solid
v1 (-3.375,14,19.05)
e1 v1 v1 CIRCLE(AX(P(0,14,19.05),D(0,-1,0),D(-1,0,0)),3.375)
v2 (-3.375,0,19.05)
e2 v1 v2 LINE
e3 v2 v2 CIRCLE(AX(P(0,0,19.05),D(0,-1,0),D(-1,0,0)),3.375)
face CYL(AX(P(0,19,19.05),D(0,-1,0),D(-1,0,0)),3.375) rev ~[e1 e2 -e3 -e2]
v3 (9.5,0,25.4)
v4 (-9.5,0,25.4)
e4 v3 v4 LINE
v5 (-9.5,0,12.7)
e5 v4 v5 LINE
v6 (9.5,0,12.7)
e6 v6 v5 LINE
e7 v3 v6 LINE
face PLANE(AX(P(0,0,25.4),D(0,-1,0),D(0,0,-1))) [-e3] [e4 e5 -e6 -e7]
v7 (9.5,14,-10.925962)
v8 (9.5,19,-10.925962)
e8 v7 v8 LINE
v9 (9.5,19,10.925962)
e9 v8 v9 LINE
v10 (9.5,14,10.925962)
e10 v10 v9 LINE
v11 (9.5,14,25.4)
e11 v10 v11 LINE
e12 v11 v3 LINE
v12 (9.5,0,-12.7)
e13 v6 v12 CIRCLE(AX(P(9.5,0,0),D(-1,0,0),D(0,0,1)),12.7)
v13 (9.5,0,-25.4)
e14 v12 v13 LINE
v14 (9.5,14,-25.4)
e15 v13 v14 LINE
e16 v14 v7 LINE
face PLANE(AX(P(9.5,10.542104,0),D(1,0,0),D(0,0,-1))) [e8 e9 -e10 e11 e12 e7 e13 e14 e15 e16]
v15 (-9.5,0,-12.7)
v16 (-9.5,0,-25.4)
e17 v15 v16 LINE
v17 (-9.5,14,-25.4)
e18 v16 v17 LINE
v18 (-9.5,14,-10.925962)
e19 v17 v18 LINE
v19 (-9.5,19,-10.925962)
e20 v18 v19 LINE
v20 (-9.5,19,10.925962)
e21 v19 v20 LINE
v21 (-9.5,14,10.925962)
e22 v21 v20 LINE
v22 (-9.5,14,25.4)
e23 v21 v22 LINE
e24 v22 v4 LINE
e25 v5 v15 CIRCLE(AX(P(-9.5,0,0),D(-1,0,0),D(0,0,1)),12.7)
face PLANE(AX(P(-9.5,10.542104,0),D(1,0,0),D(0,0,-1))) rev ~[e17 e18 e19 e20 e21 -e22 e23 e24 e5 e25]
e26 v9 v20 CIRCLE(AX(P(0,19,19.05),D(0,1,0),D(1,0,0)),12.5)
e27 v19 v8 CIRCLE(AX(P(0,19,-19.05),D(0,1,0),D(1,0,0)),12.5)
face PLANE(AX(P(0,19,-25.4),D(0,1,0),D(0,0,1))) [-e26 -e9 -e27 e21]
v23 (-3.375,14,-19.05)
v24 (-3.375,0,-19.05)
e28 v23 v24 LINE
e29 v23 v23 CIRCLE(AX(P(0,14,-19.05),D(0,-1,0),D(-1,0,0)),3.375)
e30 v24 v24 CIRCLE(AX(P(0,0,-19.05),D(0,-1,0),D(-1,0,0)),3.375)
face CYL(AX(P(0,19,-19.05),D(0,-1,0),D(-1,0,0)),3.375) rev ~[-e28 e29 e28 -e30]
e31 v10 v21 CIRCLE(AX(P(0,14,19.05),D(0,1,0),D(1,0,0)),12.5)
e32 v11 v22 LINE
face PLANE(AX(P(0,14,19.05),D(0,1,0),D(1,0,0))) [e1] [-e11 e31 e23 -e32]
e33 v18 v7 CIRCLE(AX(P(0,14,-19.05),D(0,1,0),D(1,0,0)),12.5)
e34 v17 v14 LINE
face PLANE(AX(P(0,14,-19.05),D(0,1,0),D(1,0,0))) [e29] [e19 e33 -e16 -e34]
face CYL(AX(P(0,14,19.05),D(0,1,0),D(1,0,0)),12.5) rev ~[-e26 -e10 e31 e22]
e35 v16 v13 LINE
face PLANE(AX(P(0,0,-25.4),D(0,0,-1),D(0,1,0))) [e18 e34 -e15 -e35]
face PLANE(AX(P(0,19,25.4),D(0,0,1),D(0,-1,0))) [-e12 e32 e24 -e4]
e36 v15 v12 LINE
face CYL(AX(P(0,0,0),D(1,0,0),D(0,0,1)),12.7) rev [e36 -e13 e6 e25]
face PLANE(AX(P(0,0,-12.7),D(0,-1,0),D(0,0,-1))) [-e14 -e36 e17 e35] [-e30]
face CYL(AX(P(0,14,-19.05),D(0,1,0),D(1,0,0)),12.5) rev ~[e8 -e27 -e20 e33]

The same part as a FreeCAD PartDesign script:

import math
import FreeCAD as App
import Part
import Sketcher
Q = App.Units.Quantity

doc = App.newDocument("Part")
body = doc.addObject("PartDesign::Body", "Body")

# Sketch on YZ plane
sketch1 = body.newObject("Sketcher::SketchObject", "Sketch")
sketch1.AttachmentSupport = (doc.getObject("YZ_Plane"), [""])
sketch1.MapMode = "FlatFace"
sketch1.addGeometry(Part.ArcOfCircle(Part.Circle(App.Vector(0, 0, 0), App.Vector(0, 0, 1), 13), math.radians(-90), math.radians(90)), False)
sketch1.addGeometry(Part.LineSegment(App.Vector(0, -13, 0), App.Vector(0, -25, 0)), False)
sketch1.addGeometry(Part.LineSegment(App.Vector(0, -25, 0), App.Vector(19, -25, 0)), False)
sketch1.addGeometry(Part.LineSegment(App.Vector(19, -25, 0), App.Vector(19, 25, 0)), False)
sketch1.addGeometry(Part.LineSegment(App.Vector(19, 25, 0), App.Vector(0, 25, 0)), False)
sketch1.addGeometry(Part.LineSegment(App.Vector(0, 25, 0), App.Vector(0, 13, 0)), False)
sketch1.addConstraint(Sketcher.Constraint("Coincident", 0, 1, 1, 1))
sketch1.addConstraint(Sketcher.Constraint("Coincident", 1, 2, 2, 1))
sketch1.addConstraint(Sketcher.Constraint("Coincident", 2, 2, 3, 1))
sketch1.addConstraint(Sketcher.Constraint("Coincident", 3, 2, 4, 1))
sketch1.addConstraint(Sketcher.Constraint("Coincident", 4, 2, 5, 1))
sketch1.addConstraint(Sketcher.Constraint("Coincident", 5, 2, 0, 2))
sketch1.addConstraint(Sketcher.Constraint("Vertical", 1))
sketch1.addConstraint(Sketcher.Constraint("Horizontal", 2))
sketch1.addConstraint(Sketcher.Constraint("Vertical", 3))
sketch1.addConstraint(Sketcher.Constraint("Horizontal", 4))
sketch1.addConstraint(Sketcher.Constraint("Vertical", 5))
sketch1.addConstraint(Sketcher.Constraint("Coincident", 0, 3, -1, 1))
sketch1.addConstraint(Sketcher.Constraint("Symmetric", 1, 2, 4, 2, -1, 1))
sketch1.addConstraint(Sketcher.Constraint("PointOnObject", 0, 1, -2))
sketch1.addConstraint(Sketcher.Constraint("Radius", 0, Q("0.5 in")))
sketch1.addConstraint(Sketcher.Constraint("DistanceY", 3, 1, 3, 2, Q("2 in")))
sketch1.addConstraint(Sketcher.Constraint("DistanceX", 2, 1, 2, 2, Q("19 mm")))
pad1 = body.newObject("PartDesign::Pad", "Pad")
pad1.Profile = sketch1
pad1.Length = 19
pad1.Midplane = True

# Sketch on XZ plane
sketch2 = body.newObject("Sketcher::SketchObject", "Sketch001")
sketch2.AttachmentSupport = (doc.getObject("XZ_Plane"), [""])
sketch2.MapMode = "FlatFace"
sketch2.AttachmentOffset = App.Placement(App.Vector(0, 0, -19), App.Rotation())
sketch2.addGeometry(Part.Circle(App.Vector(0, 19.1, 0), App.Vector(0, 0, 1), 3.4), False)
sketch2.addGeometry(Part.Circle(App.Vector(0, -19.1, 0), App.Vector(0, 0, 1), 3.4), False)
sketch2.addConstraint(Sketcher.Constraint("Equal", 0, 1))
sketch2.addConstraint(Sketcher.Constraint("Symmetric", 0, 3, 1, 3, -1, 1))
sketch2.addConstraint(Sketcher.Constraint("PointOnObject", 0, 3, -2))
sketch2.addConstraint(Sketcher.Constraint("DistanceY", 1, 3, 0, 3, Q("1.5 in")))
sketch2.addConstraint(Sketcher.Constraint("Diameter", 0, Q("6.75 mm")))
doc.recompute()
hole = body.newObject("PartDesign::Hole", "Hole")
hole.Profile = sketch2
hole.ThreadType = "None"
hole.Diameter = 6.75
hole.DepthType = "ThroughAll"
hole.HoleCutType = "Counterbore"
hole.HoleCutDiameter = 25
hole.HoleCutDepth = 5
hole.Reversed = True

doc.recompute()
